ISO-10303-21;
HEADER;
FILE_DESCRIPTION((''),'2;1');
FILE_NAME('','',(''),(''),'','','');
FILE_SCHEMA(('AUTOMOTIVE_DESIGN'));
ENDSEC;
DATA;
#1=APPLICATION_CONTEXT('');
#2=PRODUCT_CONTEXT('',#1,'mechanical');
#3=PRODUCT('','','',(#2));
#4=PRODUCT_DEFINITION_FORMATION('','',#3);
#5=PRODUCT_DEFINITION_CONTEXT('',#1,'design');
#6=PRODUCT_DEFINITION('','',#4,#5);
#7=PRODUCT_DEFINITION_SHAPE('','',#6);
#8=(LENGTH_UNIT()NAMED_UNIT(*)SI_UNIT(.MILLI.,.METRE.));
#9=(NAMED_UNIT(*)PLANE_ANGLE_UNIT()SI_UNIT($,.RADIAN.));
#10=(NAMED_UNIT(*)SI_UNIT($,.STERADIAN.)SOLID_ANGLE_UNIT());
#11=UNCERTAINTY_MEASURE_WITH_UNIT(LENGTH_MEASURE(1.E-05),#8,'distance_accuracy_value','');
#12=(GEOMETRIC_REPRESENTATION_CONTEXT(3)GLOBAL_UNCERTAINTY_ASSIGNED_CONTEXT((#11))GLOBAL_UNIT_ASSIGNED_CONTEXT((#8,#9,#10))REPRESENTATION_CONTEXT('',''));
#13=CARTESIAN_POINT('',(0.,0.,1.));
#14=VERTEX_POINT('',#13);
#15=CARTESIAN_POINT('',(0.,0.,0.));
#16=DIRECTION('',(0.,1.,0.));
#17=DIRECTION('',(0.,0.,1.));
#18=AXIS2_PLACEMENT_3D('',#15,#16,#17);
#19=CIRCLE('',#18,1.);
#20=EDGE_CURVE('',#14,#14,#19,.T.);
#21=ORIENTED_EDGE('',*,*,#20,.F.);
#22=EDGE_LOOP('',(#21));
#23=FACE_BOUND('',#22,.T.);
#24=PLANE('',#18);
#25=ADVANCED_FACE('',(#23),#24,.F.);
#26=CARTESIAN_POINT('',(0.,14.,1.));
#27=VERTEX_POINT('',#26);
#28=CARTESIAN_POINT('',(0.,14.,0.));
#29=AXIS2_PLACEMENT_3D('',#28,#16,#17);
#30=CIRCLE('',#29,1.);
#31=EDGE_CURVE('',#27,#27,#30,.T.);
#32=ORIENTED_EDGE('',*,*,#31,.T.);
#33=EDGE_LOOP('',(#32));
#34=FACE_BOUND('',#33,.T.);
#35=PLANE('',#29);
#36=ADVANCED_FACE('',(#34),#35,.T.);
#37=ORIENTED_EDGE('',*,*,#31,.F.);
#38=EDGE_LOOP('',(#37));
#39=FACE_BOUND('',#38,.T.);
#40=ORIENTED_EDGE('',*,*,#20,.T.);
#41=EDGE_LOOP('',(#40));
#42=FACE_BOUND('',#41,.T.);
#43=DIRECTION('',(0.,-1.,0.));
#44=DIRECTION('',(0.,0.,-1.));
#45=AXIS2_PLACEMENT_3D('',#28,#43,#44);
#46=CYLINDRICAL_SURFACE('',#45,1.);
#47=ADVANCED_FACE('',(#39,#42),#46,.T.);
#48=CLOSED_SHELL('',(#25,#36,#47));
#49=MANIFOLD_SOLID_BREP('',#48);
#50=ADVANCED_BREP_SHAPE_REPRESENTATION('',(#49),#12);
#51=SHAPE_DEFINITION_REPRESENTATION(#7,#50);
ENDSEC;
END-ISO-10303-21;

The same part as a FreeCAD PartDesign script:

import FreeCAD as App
import Part
import Sketcher

V = App.Vector
Q = App.Units.Quantity

doc = App.newDocument("Part")
params = doc.addObject("Spreadsheet::Sheet", "Params")
for row, (alias, value) in enumerate([
    ("sketch1_diameter", "2 mm"),
    ("pad1_length", "14 mm"),
], start=1):
    params.set(f"A{row}", alias)
    params.set(f"B{row}", "=" + value)
    params.setAlias(f"B{row}", alias)

body = doc.addObject("PartDesign::Body", "Body")

sketch1 = body.newObject("Sketcher::SketchObject", "Sketch")
sketch1.AttachmentSupport = (doc.getObject("XZ_Plane"), [""])
sketch1.MapMode = "FlatFace"
sketch1.addGeometry(Part.Circle(V(0, 0, 0), V(0, 0, 1), 1), False)
sketch1.addConstraint([
    Sketcher.Constraint("Coincident", 0, 3, -1, 1),
    Sketcher.Constraint("Diameter", 0, Q("2 mm")),
])
sketch1.setExpression("Constraints[1]", "Params.sketch1_diameter")
pad1 = body.newObject("PartDesign::Pad", "Pad")
pad1.Profile = sketch1
pad1.setExpression("Length", "Params.pad1_length")
pad1.Reversed = True

doc.recompute()
